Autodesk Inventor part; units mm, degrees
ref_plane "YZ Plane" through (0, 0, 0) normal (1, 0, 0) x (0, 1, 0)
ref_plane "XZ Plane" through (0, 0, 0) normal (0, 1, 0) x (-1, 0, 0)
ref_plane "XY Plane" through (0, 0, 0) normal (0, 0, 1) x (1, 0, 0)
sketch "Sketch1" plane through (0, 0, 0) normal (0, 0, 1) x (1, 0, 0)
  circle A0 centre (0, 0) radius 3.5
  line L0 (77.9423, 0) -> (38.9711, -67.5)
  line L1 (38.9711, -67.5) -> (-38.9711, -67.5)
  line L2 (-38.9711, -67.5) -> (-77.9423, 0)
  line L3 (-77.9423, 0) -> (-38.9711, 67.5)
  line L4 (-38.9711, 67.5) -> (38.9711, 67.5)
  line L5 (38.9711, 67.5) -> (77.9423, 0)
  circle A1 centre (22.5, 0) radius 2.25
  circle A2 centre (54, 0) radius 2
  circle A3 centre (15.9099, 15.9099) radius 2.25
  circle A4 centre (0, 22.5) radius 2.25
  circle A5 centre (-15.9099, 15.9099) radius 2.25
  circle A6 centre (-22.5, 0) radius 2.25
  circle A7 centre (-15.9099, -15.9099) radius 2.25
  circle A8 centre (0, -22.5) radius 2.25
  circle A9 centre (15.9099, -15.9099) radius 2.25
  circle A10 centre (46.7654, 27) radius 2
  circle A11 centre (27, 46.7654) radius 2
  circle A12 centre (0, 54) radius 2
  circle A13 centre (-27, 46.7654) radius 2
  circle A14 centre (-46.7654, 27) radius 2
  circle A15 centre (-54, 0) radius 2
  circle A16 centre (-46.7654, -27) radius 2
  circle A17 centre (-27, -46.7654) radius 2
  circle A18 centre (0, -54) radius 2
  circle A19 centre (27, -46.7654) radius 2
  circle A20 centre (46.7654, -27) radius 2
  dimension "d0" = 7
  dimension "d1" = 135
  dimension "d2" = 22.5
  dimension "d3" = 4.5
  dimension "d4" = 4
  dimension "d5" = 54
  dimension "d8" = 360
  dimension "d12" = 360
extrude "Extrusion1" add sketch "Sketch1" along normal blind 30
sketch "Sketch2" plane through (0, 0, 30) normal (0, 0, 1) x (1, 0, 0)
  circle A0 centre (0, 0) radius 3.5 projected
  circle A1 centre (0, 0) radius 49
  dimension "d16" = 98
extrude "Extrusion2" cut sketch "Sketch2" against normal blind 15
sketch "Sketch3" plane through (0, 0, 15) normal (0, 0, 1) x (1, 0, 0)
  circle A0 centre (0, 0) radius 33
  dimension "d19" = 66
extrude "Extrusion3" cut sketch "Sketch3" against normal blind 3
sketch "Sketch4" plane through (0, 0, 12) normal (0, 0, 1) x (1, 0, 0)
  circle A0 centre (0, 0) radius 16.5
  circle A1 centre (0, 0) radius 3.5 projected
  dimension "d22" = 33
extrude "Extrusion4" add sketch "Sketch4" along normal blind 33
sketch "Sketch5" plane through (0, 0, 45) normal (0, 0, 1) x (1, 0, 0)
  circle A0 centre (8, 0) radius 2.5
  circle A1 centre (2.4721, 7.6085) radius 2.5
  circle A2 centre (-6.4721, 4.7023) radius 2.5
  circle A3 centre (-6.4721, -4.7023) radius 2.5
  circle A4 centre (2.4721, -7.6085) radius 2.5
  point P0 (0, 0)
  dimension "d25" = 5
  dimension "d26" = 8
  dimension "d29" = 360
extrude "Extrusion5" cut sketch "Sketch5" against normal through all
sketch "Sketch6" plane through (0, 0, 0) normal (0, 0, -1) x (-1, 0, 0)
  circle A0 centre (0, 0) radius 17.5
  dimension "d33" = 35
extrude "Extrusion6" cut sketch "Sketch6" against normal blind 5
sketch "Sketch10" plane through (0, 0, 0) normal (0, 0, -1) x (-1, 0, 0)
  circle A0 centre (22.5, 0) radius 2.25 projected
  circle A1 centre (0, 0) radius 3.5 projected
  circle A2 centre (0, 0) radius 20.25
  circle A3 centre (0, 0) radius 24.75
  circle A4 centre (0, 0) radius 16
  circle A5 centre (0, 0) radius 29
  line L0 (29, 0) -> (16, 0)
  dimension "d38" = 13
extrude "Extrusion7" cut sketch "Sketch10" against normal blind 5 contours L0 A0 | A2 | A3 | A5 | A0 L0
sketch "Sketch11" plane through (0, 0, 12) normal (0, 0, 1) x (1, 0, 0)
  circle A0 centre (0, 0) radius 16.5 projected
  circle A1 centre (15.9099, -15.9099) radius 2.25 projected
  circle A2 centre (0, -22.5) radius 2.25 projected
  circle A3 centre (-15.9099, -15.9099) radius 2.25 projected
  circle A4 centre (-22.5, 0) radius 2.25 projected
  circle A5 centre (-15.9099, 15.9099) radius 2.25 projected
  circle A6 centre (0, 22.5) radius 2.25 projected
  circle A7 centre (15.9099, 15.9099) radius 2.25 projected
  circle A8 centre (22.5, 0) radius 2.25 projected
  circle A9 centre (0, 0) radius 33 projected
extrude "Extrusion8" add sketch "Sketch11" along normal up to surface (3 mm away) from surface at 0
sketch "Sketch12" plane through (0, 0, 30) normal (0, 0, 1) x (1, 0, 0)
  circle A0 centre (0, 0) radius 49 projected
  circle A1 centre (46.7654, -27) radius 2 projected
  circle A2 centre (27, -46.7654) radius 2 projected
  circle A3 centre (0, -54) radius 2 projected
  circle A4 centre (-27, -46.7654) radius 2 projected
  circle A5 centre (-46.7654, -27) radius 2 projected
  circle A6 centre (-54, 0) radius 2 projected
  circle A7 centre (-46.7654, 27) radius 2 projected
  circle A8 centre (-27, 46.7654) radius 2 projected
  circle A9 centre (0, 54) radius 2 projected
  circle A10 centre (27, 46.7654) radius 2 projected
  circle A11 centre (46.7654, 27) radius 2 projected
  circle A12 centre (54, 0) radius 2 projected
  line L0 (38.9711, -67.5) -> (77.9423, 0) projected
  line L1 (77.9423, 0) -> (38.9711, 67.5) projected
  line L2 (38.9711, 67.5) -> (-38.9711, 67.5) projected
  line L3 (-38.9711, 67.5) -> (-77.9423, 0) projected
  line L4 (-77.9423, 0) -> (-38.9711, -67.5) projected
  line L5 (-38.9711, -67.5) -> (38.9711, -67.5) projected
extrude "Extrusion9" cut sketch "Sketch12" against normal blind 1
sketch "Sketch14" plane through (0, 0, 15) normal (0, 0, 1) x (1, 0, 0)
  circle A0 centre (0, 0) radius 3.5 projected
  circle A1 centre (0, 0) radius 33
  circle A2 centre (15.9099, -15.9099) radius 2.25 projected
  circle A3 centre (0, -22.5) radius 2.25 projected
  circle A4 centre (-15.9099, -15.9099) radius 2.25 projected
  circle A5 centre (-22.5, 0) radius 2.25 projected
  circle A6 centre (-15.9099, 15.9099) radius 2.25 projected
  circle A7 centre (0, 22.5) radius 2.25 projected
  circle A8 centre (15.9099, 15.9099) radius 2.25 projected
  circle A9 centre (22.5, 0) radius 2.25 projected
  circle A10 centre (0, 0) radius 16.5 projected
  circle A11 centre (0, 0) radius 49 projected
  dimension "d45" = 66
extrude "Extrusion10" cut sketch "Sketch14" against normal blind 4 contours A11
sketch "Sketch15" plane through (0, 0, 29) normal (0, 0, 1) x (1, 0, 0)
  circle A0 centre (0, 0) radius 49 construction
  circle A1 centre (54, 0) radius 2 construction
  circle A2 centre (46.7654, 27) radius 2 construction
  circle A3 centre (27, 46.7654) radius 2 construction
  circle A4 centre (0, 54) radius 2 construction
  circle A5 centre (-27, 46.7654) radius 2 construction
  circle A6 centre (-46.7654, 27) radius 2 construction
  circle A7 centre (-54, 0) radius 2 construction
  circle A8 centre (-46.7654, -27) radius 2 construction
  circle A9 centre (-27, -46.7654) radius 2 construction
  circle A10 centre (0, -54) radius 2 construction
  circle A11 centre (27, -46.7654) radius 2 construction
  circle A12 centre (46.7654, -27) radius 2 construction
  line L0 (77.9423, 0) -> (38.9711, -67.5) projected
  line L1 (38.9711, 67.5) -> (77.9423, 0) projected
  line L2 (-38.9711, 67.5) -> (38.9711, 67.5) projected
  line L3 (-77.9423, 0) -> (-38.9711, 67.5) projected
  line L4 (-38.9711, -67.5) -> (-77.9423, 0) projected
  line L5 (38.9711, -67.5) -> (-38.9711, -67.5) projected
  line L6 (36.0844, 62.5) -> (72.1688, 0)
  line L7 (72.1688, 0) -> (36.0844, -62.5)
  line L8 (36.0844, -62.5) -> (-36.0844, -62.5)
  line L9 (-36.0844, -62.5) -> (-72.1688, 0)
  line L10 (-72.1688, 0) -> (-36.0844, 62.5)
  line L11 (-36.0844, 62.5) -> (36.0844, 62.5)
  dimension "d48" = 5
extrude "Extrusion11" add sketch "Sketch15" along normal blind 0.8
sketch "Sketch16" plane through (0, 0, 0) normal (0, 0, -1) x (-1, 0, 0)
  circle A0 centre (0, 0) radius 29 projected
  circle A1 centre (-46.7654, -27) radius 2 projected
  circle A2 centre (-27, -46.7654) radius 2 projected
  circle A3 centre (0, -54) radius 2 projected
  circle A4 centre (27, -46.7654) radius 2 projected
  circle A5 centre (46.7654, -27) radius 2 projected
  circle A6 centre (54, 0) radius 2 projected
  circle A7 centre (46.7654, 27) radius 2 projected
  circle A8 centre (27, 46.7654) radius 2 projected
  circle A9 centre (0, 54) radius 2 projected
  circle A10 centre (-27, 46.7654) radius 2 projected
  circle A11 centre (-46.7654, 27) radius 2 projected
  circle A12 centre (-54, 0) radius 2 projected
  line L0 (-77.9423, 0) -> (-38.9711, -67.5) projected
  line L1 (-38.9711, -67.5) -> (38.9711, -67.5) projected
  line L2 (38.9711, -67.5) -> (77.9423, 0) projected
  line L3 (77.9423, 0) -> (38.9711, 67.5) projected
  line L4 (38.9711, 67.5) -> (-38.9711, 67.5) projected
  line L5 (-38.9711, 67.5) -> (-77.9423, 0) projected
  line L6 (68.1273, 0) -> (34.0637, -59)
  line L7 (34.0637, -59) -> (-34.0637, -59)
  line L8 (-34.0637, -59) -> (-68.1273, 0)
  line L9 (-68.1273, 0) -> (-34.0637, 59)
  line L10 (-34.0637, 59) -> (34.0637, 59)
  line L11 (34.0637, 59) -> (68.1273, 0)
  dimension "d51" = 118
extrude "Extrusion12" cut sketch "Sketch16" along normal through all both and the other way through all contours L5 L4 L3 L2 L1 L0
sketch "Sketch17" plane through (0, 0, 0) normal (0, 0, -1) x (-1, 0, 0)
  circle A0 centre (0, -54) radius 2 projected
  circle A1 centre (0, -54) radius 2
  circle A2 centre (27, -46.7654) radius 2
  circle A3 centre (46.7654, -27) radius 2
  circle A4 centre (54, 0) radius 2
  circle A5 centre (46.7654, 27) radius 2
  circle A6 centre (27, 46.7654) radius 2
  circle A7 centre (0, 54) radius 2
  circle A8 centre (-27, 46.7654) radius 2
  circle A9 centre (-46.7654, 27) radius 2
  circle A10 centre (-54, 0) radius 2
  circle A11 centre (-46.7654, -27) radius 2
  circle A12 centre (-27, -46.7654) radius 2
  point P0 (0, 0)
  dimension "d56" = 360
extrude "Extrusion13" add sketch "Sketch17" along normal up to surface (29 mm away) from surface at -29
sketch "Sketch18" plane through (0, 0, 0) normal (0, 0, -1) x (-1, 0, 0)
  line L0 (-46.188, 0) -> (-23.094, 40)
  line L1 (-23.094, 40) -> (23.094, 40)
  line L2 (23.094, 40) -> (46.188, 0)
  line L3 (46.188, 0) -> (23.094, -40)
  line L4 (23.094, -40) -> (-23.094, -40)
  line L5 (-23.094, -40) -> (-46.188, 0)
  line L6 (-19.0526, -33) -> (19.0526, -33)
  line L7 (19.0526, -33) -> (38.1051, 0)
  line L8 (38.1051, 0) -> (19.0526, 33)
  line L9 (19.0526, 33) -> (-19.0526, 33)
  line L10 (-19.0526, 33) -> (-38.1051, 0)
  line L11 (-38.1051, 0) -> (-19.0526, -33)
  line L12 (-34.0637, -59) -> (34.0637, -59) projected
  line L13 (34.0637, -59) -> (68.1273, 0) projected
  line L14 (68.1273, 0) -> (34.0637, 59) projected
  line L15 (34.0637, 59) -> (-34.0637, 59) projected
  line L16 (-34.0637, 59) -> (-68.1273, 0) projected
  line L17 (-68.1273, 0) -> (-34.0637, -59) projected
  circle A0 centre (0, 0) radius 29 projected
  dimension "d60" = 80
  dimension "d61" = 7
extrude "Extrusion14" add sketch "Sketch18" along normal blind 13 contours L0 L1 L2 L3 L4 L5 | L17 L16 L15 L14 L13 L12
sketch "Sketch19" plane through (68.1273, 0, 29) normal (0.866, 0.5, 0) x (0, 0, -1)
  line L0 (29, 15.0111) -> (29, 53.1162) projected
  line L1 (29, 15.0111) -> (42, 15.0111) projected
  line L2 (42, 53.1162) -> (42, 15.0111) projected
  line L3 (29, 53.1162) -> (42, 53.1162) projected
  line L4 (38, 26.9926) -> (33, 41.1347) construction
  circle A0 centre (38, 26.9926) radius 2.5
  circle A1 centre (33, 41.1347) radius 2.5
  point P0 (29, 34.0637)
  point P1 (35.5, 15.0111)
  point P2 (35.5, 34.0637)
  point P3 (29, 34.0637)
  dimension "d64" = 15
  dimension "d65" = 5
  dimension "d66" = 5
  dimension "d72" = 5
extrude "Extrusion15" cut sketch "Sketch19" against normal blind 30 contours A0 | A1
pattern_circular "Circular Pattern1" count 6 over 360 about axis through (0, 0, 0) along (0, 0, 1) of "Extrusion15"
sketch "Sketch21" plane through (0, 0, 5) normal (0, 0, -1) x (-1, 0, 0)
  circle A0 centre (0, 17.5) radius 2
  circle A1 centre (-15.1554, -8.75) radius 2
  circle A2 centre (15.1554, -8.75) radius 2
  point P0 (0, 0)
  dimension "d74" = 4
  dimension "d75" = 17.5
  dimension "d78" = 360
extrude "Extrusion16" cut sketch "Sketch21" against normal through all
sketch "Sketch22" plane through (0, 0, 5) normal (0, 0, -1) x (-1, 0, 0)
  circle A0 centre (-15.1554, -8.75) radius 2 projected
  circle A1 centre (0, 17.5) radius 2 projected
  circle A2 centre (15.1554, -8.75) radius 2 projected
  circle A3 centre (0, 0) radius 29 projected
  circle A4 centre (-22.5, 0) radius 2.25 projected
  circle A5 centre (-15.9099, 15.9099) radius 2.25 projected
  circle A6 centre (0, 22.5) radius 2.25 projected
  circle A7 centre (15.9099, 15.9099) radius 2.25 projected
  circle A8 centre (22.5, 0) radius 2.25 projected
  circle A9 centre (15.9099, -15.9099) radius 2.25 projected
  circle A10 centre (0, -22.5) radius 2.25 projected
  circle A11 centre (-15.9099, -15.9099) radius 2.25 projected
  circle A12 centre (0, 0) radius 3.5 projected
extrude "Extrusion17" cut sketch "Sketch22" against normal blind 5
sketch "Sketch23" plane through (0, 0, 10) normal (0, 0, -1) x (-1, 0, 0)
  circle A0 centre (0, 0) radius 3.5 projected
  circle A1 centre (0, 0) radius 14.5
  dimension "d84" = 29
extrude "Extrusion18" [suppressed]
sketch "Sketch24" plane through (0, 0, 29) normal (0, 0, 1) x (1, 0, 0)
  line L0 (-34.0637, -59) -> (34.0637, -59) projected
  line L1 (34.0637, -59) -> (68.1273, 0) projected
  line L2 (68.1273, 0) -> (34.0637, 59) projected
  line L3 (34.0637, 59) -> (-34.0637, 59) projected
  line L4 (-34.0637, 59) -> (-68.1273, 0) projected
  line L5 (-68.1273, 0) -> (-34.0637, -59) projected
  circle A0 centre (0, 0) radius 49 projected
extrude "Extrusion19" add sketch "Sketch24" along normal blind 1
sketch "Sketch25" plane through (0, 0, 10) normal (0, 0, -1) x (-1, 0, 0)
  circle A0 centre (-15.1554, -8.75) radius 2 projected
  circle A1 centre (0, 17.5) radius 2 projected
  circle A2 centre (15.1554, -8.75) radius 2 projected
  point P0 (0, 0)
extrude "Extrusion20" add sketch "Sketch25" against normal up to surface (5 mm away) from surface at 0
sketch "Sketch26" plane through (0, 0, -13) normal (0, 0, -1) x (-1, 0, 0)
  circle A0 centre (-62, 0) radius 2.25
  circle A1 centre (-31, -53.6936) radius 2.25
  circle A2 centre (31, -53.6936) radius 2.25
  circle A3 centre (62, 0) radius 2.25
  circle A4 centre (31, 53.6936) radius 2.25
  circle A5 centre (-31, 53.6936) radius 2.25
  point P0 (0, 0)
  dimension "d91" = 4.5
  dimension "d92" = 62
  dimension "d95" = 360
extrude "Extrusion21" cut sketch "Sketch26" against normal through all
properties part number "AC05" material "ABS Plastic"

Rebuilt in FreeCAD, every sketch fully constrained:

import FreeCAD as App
import Part
import Sketcher

V = App.Vector
Q = App.Units.Quantity

doc = App.newDocument("Part")
body = doc.addObject("PartDesign::Body", "Body")

# Sketch on XY plane
sketch1 = body.newObject("Sketcher::SketchObject", "Sketch")
sketch1.AttachmentSupport = (doc.getObject("XY_Plane"), [""])
sketch1.MapMode = "FlatFace"
sketch1.addGeometry([
    Part.LineSegment(V(39, -67.5, 0), V(77.9, 0, 0)),  # 0
    Part.LineSegment(V(77.9, 0, 0), V(39, 67.5, 0)),  # 1
    Part.LineSegment(V(39, 67.5, 0), V(-39, 67.5, 0)),  # 2
    Part.LineSegment(V(-39, 67.5, 0), V(-77.9, 0, 0)),  # 3
    Part.LineSegment(V(-77.9, 0, 0), V(-39, -67.5, 0)),  # 4
    Part.LineSegment(V(-39, -67.5, 0), V(39, -67.5, 0)),  # 5
    Part.Circle(V(-27, -46.8, 0), V(0, 0, 1), 2),  # 6
    Part.Circle(V(-46.8, -27, 0), V(0, 0, 1), 2),  # 7
    Part.Circle(V(-15.9, -15.9, 0), V(0, 0, 1), 2.2),  # 8
    Part.Circle(V(0, -54, 0), V(0, 0, 1), 2),  # 9
    Part.Circle(V(27, -46.8, 0), V(0, 0, 1), 2),  # 10
    Part.Circle(V(0, -22.5, 0), V(0, 0, 1), 2.2),  # 11
    Part.Circle(V(15.9, -15.9, 0), V(0, 0, 1), 2.2),  # 12
    Part.Circle(V(46.8, -27, 0), V(0, 0, 1), 2),  # 13
    Part.Circle(V(-54, 0, 0), V(0, 0, 1), 2),  # 14
    Part.Circle(V(-46.8, 27, 0), V(0, 0, 1), 2),  # 15
    Part.Circle(V(-22.5, 0, 0), V(0, 0, 1), 2.2),  # 16
    Part.Circle(V(-15.9, 15.9, 0), V(0, 0, 1), 2.2),  # 17
    Part.Circle(V(-27, 46.8, 0), V(0, 0, 1), 2),  # 18
    Part.Circle(V(0, 0, 0), V(0, 0, 1), 3.5),  # 19
    Part.Circle(V(15.9, 15.9, 0), V(0, 0, 1), 2.2),  # 20
    Part.Circle(V(22.5, 0, 0), V(0, 0, 1), 2.2),  # 21
    Part.Circle(V(0, 22.5, 0), V(0, 0, 1), 2.2),  # 22
    Part.Circle(V(54, 0, 0), V(0, 0, 1), 2),  # 23
    Part.Circle(V(46.8, 27, 0), V(0, 0, 1), 2),  # 24
    Part.Circle(V(27, 46.8, 0), V(0, 0, 1), 2),  # 25
    Part.Circle(V(0, 54, 0), V(0, 0, 1), 2),  # 26
], False)
sketch1.addConstraint([
    Sketcher.Constraint("Coincident", 0, 2, 1, 1),
    Sketcher.Constraint("Coincident", 1, 2, 2, 1),
    Sketcher.Constraint("Coincident", 2, 2, 3, 1),
    Sketcher.Constraint("Coincident", 3, 2, 4, 1),
    Sketcher.Constraint("Coincident", 4, 2, 5, 1),
    Sketcher.Constraint("Coincident", 5, 2, 0, 1),
    Sketcher.Constraint("Horizontal", 2),
    Sketcher.Constraint("Horizontal", 5),
    Sketcher.Constraint("Coincident", 19, 3, -1, 1),
    Sketcher.Constraint("Equal", 6, 7),
    Sketcher.Constraint("Equal", 7, 9),
    Sketcher.Constraint("Equal", 9, 10),
    Sketcher.Constraint("Equal", 8, 11),
    Sketcher.Constraint("Equal", 11, 12),
    Sketcher.Constraint("Equal", 10, 13),
    Sketcher.Constraint("Equal", 13, 14),
    Sketcher.Constraint("Equal", 14, 15),
    Sketcher.Constraint("Equal", 12, 16),
    Sketcher.Constraint("Equal", 16, 17),
    Sketcher.Constraint("Equal", 15, 18),
    Sketcher.Constraint("Equal", 17, 20),
    Sketcher.Constraint("Equal", 20, 21),
    Sketcher.Constraint("Equal", 21, 22),
    Sketcher.Constraint("Equal", 18, 23),
    Sketcher.Constraint("Equal", 23, 24),
    Sketcher.Constraint("Equal", 24, 25),
    Sketcher.Constraint("Equal", 25, 26),
    Sketcher.Constraint("Symmetric", 13, 3, 15, 3, -1, 1),
    Sketcher.Constraint("Symmetric", 12, 3, 17, 3, -1, 1),
    Sketcher.Constraint("Symmetric", 10, 3, 18, 3, -1, 1),
    Sketcher.Constraint("Symmetric", 8, 3, 20, 3, -1, 1),
    Sketcher.Constraint("Symmetric", 16, 3, 21, 3, -1, 1),
    Sketcher.Constraint("Symmetric", 11, 3, 22, 3, -1, 1),
    Sketcher.Constraint("Symmetric", 14, 3, 23, 3, -1, 1),
    Sketcher.Constraint("Symmetric", 7, 3, 24, 3, -1, 1),
    Sketcher.Constraint("Symmetric", 6, 3, 25, 3, -1, 1),
    Sketcher.Constraint("Symmetric", 9, 3, 26, 3, -1, 1),
    Sketcher.Constraint("Symmetric", 0, 2, 3, 2, -1, 1),
    Sketcher.Constraint("Symmetric", 1, 2, 4, 2, -1, 1),
    Sketcher.Constraint("Symmetric", 6, 3, 10, 3, -2),
    Sketcher.Constraint("Symmetric", 8, 3, 12, 3, -2),
    Sketcher.Constraint("Symmetric", 7, 3, 13, 3, -2),
    Sketcher.Constraint("PointOnObject", 9, 3, -2),
    Sketcher.Constraint("PointOnObject", 11, 3, -2),
    Sketcher.Constraint("PointOnObject", 14, 3, -1),
    Sketcher.Constraint("PointOnObject", 16, 3, -1),
    Sketcher.Constraint("PointOnObject", 0, 2, -1),
    Sketcher.Constraint("Parallel", 0, 3),
    Sketcher.Constraint("Vertical", 2, 2, 4, 2),
    Sketcher.Constraint("Diameter", 6, 4.0),
    Sketcher.Constraint("Diameter", 19, 7.0),
    Sketcher.Constraint("Diameter", 8, 4.5),
    Sketcher.Constraint("DistanceY", 9, 3, -1, 1, 54.0),
    Sketcher.Constraint("DistanceX", 14, 3, -1, 1, 54.0),
    Sketcher.Constraint("DistanceX", 6, 3, 10, 3, 54.0),
    Sketcher.Constraint("DistanceY", 7, 3, 15, 3, 54.0),
    Sketcher.Constraint("DistanceY", 11, 3, -1, 1, 22.5),
    Sketcher.Constraint("DistanceX", 16, 3, -1, 1, 22.5),
    Sketcher.Constraint("Angle", 0, Q("60 deg")),
    Sketcher.Constraint("DistanceY", 22, 3, 1, 2, 45.0),
    Sketcher.Constraint("DistanceX", 8, 3, -1, 1, 15.91),
    Sketcher.Constraint("DistanceY", 8, 3, -1, 1, 15.91),
    Sketcher.Constraint("DistanceX", 2, 2, 2, 1, 77.9422),
    Sketcher.Constraint("DistanceX", 13, 3, 0, 2, 31.177),
    Sketcher.Constraint("DistanceY", 6, 3, -1, 1, 46.7654),
])
pad1 = body.newObject("PartDesign::Pad", "Pad")
pad1.Profile = sketch1
pad1.Length = 30

# Sketch on XY plane
sketch2 = body.newObject("Sketcher::SketchObject", "Sketch001")
sketch2.AttachmentSupport = (doc.getObject("XY_Plane"), [""])
sketch2.MapMode = "FlatFace"
sketch2.AttachmentOffset = App.Placement(V(0, 0, 30), App.Rotation())
sketch2.addGeometry([
    Part.Circle(V(0, 0, 0), V(0, 0, 1), 49),
    Part.Circle(V(0, 0, 0), V(0, 0, 1), 3.5),
], False)
sketch2.addConstraint([
    Sketcher.Constraint("Coincident", 0, 3, -1, 1),
    Sketcher.Constraint("Coincident", 1, 3, -1, 1),
    Sketcher.Constraint("Diameter", 0, 98.0),
    Sketcher.Constraint("Diameter", 1, 7.0),
])
pocket1 = body.newObject("PartDesign::Pocket", "Pocket")
pocket1.Profile = sketch2
pocket1.Length = 15

# Sketch on XY plane
sketch3 = body.newObject("Sketcher::SketchObject", "Sketch002")
sketch3.AttachmentSupport = (doc.getObject("XY_Plane"), [""])
sketch3.MapMode = "FlatFace"
sketch3.AttachmentOffset = App.Placement(V(0, 0, 15), App.Rotation())
sketch3.addGeometry(Part.Circle(V(0, 0, 0), V(0, 0, 1), 33), False)
sketch3.addConstraint([
    Sketcher.Constraint("Coincident", 0, 3, -1, 1),
    Sketcher.Constraint("Diameter", 0, 66.0),
])
pocket2 = body.newObject("PartDesign::Pocket", "Pocket001")
pocket2.Profile = sketch3
pocket2.Length = 3

# Sketch on XY plane
sketch4 = body.newObject("Sketcher::SketchObject", "Sketch003")
sketch4.AttachmentSupport = (doc.getObject("XY_Plane"), [""])
sketch4.MapMode = "FlatFace"
sketch4.AttachmentOffset = App.Placement(V(0, 0, 12), App.Rotation())
sketch4.addGeometry([
    Part.Circle(V(0, 0, 0), V(0, 0, 1), 16.5),
    Part.Circle(V(0, 0, 0), V(0, 0, 1), 3.5),
], False)
sketch4.addConstraint([
    Sketcher.Constraint("Coincident", 0, 3, -1, 1),
    Sketcher.Constraint("Coincident", 1, 3, -1, 1),
    Sketcher.Constraint("Diameter", 0, 33.0),
    Sketcher.Constraint("Diameter", 1, 7.0),
])
pad2 = body.newObject("PartDesign::Pad", "Pad001")
pad2.Profile = sketch4
pad2.Length = 33

# Sketch on XY plane
sketch5 = body.newObject("Sketcher::SketchObject", "Sketch004")
sketch5.AttachmentSupport = (doc.getObject("XY_Plane"), [""])
sketch5.MapMode = "FlatFace"
sketch5.AttachmentOffset = App.Placement(V(0, 0, 45), App.Rotation())
sketch5.addGeometry([
    Part.Circle(V(8, 0, 0), V(0, 0, 1), 2.5),  # 0
    Part.Circle(V(2.5, 7.6, 0), V(0, 0, 1), 2.5),  # 1
    Part.Circle(V(-6.5, 4.7, 0), V(0, 0, 1), 2.5),  # 2
    Part.Circle(V(-6.5, -4.7, 0), V(0, 0, 1), 2.5),  # 3
    Part.Circle(V(2.5, -7.6, 0), V(0, 0, 1), 2.5),  # 4
], False)
sketch5.addConstraint([
    Sketcher.Constraint("Equal", 0, 1),
    Sketcher.Constraint("Equal", 1, 2),
    Sketcher.Constraint("Equal", 2, 3),
    Sketcher.Constraint("Equal", 3, 4),
    Sketcher.Constraint("Symmetric", 2, 3, 3, 3, -1),
    Sketcher.Constraint("Symmetric", 1, 3, 4, 3, -1),
    Sketcher.Constraint("PointOnObject", 0, 3, -1),
    Sketcher.Constraint("Diameter", 0, 5.0),
    Sketcher.Constraint("DistanceX", -1, 1, 0, 3, 8.0),
    Sketcher.Constraint("DistanceX", -1, 1, 1, 3, 2.472),
    Sketcher.Constraint("DistanceX", 2, 3, -1, 1, 6.472),
    Sketcher.Constraint("DistanceY", 4, 3, 1, 3, 15.217),
    Sketcher.Constraint("DistanceY", -1, 1, 2, 3, 4.7023),
])
pocket3 = body.newObject("PartDesign::Pocket", "Pocket002")
pocket3.Profile = sketch5
pocket3.Type = "ThroughAll"

# Sketch on XY plane
sketch6 = body.newObject("Sketcher::SketchObject", "Sketch005")
sketch6.AttachmentSupport = (doc.getObject("XY_Plane"), [""])
sketch6.MapMode = "FlatFace"
sketch6.addGeometry(Part.Circle(V(0, 0, 0), V(0, 0, 1), 18), False)
sketch6.addConstraint([
    Sketcher.Constraint("Coincident", 0, 3, -1, 1),
    Sketcher.Constraint("Diameter", 0, 35.0),
])
pocket4 = body.newObject("PartDesign::Pocket", "Pocket003")
pocket4.Profile = sketch6
pocket4.Length = 5
pocket4.Reversed = True

# Sketch on XY plane
sketch7 = body.newObject("Sketcher::SketchObject", "Sketch006")
sketch7.AttachmentSupport = (doc.getObject("XY_Plane"), [""])
sketch7.MapMode = "FlatFace"
sketch7.addGeometry([
    Part.Circle(V(0, 0, 0), V(0, 0, 1), 29),
    Part.Circle(V(0, 0, 0), V(0, 0, 1), 16),
], False)
sketch7.addConstraint([
    Sketcher.Constraint("Coincident", 0, 3, -1, 1),
    Sketcher.Constraint("Coincident", 1, 3, -1, 1),
    Sketcher.Constraint("Diameter", 0, 58.0),
    Sketcher.Constraint("Diameter", 1, 32.0),
])
pocket5 = body.newObject("PartDesign::Pocket", "Pocket004")
pocket5.Profile = sketch7
pocket5.Length = 5
pocket5.Reversed = True

# Sketch on XY plane
sketch8 = body.newObject("Sketcher::SketchObject", "Sketch007")
sketch8.AttachmentSupport = (doc.getObject("XY_Plane"), [""])
sketch8.MapMode = "FlatFace"
sketch8.AttachmentOffset = App.Placement(V(0, 0, 12), App.Rotation())
sketch8.addGeometry([
    Part.Circle(V(0, 0, 0), V(0, 0, 1), 33),  # 0
    Part.Circle(V(-15.9, -15.9, 0), V(0, 0, 1), 2.2),  # 1
    Part.Circle(V(0, -22.5, 0), V(0, 0, 1), 2.2),  # 2
    Part.Circle(V(15.9, -15.9, 0), V(0, 0, 1), 2.2),  # 3
    Part.Circle(V(-22.5, 0, 0), V(0, 0, 1), 2.2),  # 4
    Part.Circle(V(-15.9, 15.9, 0), V(0, 0, 1), 2.2),  # 5
    Part.Circle(V(0, 0, 0), V(0, 0, 1), 16.5),  # 6
    Part.Circle(V(15.9, 15.9, 0), V(0, 0, 1), 2.2),  # 7
    Part.Circle(V(22.5, 0, 0), V(0, 0, 1), 2.2),  # 8
    Part.Circle(V(0, 22.5, 0), V(0, 0, 1), 2.2),  # 9
], False)
sketch8.addConstraint([
    Sketcher.Constraint("Coincident", 0, 3, -1, 1),
    Sketcher.Constraint("Coincident", 6, 3, -1, 1),
    Sketcher.Constraint("Equal", 1, 2),
    Sketcher.Constraint("Equal", 2, 3),
    Sketcher.Constraint("Equal", 3, 4),
    Sketcher.Constraint("Equal", 4, 5),
    Sketcher.Constraint("Equal", 5, 7),
    Sketcher.Constraint("Equal", 7, 8),
    Sketcher.Constraint("Equal", 8, 9),
    Sketcher.Constraint("Symmetric", 3, 3, 5, 3, -1, 1),
    Sketcher.Constraint("Symmetric", 1, 3, 7, 3, -1, 1),
    Sketcher.Constraint("Symmetric", 4, 3, 8, 3, -1, 1),
    Sketcher.Constraint("Symmetric", 2, 3, 9, 3, -1, 1),
    Sketcher.Constraint("Symmetric", 1, 3, 3, 3, -2),
    Sketcher.Constraint("PointOnObject", 2, 3, -2),
    Sketcher.Constraint("PointOnObject", 4, 3, -1),
    Sketcher.Constraint("Diameter", 0, 66.0),
    Sketcher.Constraint("Diameter", 6, 33.0),
    Sketcher.Constraint("Diameter", 1, 4.5),
    Sketcher.Constraint("DistanceY", 2, 3, -1, 1, 22.5),
    Sketcher.Constraint("DistanceX", 4, 3, -1, 1, 22.5),
    Sketcher.Constraint("DistanceX", 1, 3, -1, 1, 15.91),
    Sketcher.Constraint("DistanceY", 1, 3, -1, 1, 15.91),
])
pad3 = body.newObject("PartDesign::Pad", "Pad002")
pad3.Profile = sketch8
pad3.Length = 3

# Sketch on XY plane
sketch9 = body.newObject("Sketcher::SketchObject", "Sketch008")
sketch9.AttachmentSupport = (doc.getObject("XY_Plane"), [""])
sketch9.MapMode = "FlatFace"
sketch9.AttachmentOffset = App.Placement(V(0, 0, 30), App.Rotation())
sketch9.addGeometry([
    Part.LineSegment(V(-39, -67.5, 0), V(39, -67.5, 0)),  # 0
    Part.LineSegment(V(39, -67.5, 0), V(77.9, 0, 0)),  # 1
    Part.LineSegment(V(77.9, 0, 0), V(39, 67.5, 0)),  # 2
    Part.LineSegment(V(39, 67.5, 0), V(-39, 67.5, 0)),  # 3
    Part.LineSegment(V(-39, 67.5, 0), V(-77.9, 0, 0)),  # 4
    Part.LineSegment(V(-77.9, 0, 0), V(-39, -67.5, 0)),  # 5
    Part.Circle(V(-27, -46.8, 0), V(0, 0, 1), 2),  # 6
    Part.Circle(V(-46.8, -27, 0), V(0, 0, 1), 2),  # 7
    Part.Circle(V(0, -54, 0), V(0, 0, 1), 2),  # 8
    Part.Circle(V(27, -46.8, 0), V(0, 0, 1), 2),  # 9
    Part.Circle(V(46.8, -27, 0), V(0, 0, 1), 2),  # 10
    Part.Circle(V(-54, 0, 0), V(0, 0, 1), 2),  # 11
    Part.Circle(V(-46.8, 27, 0), V(0, 0, 1), 2),  # 12
    Part.Circle(V(-27, 46.8, 0), V(0, 0, 1), 2),  # 13
    Part.Circle(V(0, 0, 0), V(0, 0, 1), 49),  # 14
    Part.Circle(V(54, 0, 0), V(0, 0, 1), 2),  # 15
    Part.Circle(V(46.8, 27, 0), V(0, 0, 1), 2),  # 16
    Part.Circle(V(27, 46.8, 0), V(0, 0, 1), 2),  # 17
    Part.Circle(V(0, 54, 0), V(0, 0, 1), 2),  # 18
], False)
sketch9.addConstraint([
    Sketcher.Constraint("Coincident", 0, 2, 1, 1),
    Sketcher.Constraint("Coincident", 1, 2, 2, 1),
    Sketcher.Constraint("Coincident", 2, 2, 3, 1),
    Sketcher.Constraint("Coincident", 3, 2, 4, 1),
    Sketcher.Constraint("Coincident", 4, 2, 5, 1),
    Sketcher.Constraint("Coincident", 5, 2, 0, 1),
    Sketcher.Constraint("Horizontal", 0),
    Sketcher.Constraint("Horizontal", 3),
    Sketcher.Constraint("Coincident", 14, 3, -1, 1),
    Sketcher.Constraint("Equal", 6, 7),
    Sketcher.Constraint("Equal", 7, 8),
    Sketcher.Constraint("Equal", 8, 9),
    Sketcher.Constraint("Equal", 9, 10),
    Sketcher.Constraint("Equal", 10, 11),
    Sketcher.Constraint("Equal", 11, 12),
    Sketcher.Constraint("Equal", 12, 13),
    Sketcher.Constraint("Equal", 13, 15),
    Sketcher.Constraint("Equal", 15, 16),
    Sketcher.Constraint("Equal", 16, 17),
    Sketcher.Constraint("Equal", 17, 18),
    Sketcher.Constraint("Symmetric", 10, 3, 12, 3, -1, 1),
    Sketcher.Constraint("Symmetric", 9, 3, 13, 3, -1, 1),
    Sketcher.Constraint("Symmetric", 11, 3, 15, 3, -1, 1),
    Sketcher.Constraint("Symmetric", 7, 3, 16, 3, -1, 1),
    Sketcher.Constraint("Symmetric", 6, 3, 17, 3, -1, 1),
    Sketcher.Constraint("Symmetric", 8, 3, 18, 3, -1, 1),
    Sketcher.Constraint("Symmetric", 0, 2, 3, 2, -1, 1),
    Sketcher.Constraint("Symmetric", 1, 2, 4, 2, -1, 1),
    Sketcher.Constraint("Symmetric", 6, 3, 9, 3, -2),
    Sketcher.Constraint("Symmetric", 7, 3, 10, 3, -2),
    Sketcher.Constraint("PointOnObject", 8, 3, -2),
    Sketcher.Constraint("PointOnObject", 11, 3, -1),
    Sketcher.Constraint("PointOnObject", 1, 2, -1),
    Sketcher.Constraint("Parallel", 2, 5),
    Sketcher.Constraint("Vertical", 0, 2, 2, 2),
    Sketcher.Constraint("Diameter", 6, 4.0),
    Sketcher.Constraint("Diameter", 14, 98.0),
    Sketcher.Constraint("Angle", 1, Q("60 deg")),
    Sketcher.Constraint("DistanceX", 6, 3, -1, 1, 27.0),
    Sketcher.Constraint("DistanceY", 7, 3, -1, 1, 27.0),
    Sketcher.Constraint("DistanceY", 8, 3, -1, 1, 54.0),
    Sketcher.Constraint("DistanceX", 11, 3, -1, 1, 54.0),
    Sketcher.Constraint("DistanceY", 0, 2, -1, 1, 67.5),
    Sketcher.Constraint("DistanceX", 0, 1, 0, 2, 77.9422),
    Sketcher.Constraint("DistanceX", 10, 3, 1, 2, 31.177),
    Sketcher.Constraint("DistanceY", 6, 3, -1, 1, 46.7654),
])
pocket6 = body.newObject("PartDesign::Pocket", "Pocket005")
pocket6.Profile = sketch9
pocket6.Length = 1

# Sketch on XY plane
sketch10 = body.newObject("Sketcher::SketchObject", "Sketch009")
sketch10.AttachmentSupport = (doc.getObject("XY_Plane"), [""])
sketch10.MapMode = "FlatFace"
sketch10.AttachmentOffset = App.Placement(V(0, 0, 15), App.Rotation())
sketch10.addGeometry([
    Part.Circle(V(0, 0, 0), V(0, 0, 1), 49),
    Part.Circle(V(0, 0, 0), V(0, 0, 1), 33),
], False)
sketch10.addConstraint([
    Sketcher.Constraint("Coincident", 0, 3, -1, 1),
    Sketcher.Constraint("Coincident", 1, 3, -1, 1),
    Sketcher.Constraint("Diameter", 1, 66.0),
    Sketcher.Constraint("Diameter", 0, 98.0),
])
pocket7 = body.newObject("PartDesign::Pocket", "Pocket006")
pocket7.Profile = sketch10
pocket7.Length = 4

# Sketch on XY plane
sketch11 = body.newObject("Sketcher::SketchObject", "Sketch010")
sketch11.AttachmentSupport = (doc.getObject("XY_Plane"), [""])
sketch11.MapMode = "FlatFace"
sketch11.AttachmentOffset = App.Placement(V(0, 0, 29), App.Rotation())
sketch11.addGeometry([
    Part.LineSegment(V(39, -68, 0), V(78, 0, 0)),  # 0
    Part.LineSegment(V(78, 0, 0), V(39, 68, 0)),  # 1
    Part.LineSegment(V(39, 68, 0), V(-39, 68, 0)),  # 2
    Part.LineSegment(V(-39, 68, 0), V(-78, 0, 0)),  # 3
    Part.LineSegment(V(-78, 0, 0), V(-39, -68, 0)),  # 4
    Part.LineSegment(V(-39, -68, 0), V(39, -68, 0)),  # 5
    Part.LineSegment(V(-36, 62, 0), V(36, 62, 0)),  # 6
    Part.LineSegment(V(36, 62, 0), V(72, 0, 0)),  # 7
    Part.LineSegment(V(72, 0, 0), V(36, -62, 0)),  # 8
    Part.LineSegment(V(36, -62, 0), V(-36, -62, 0)),  # 9
    Part.LineSegment(V(-36, -62, 0), V(-72, 0, 0)),  # 10
    Part.LineSegment(V(-72, 0, 0), V(-36, 62, 0)),  # 11
], False)
sketch11.addConstraint([
    Sketcher.Constraint("Coincident", 0, 2, 1, 1),
    Sketcher.Constraint("Coincident", 1, 2, 2, 1),
    Sketcher.Constraint("Coincident", 2, 2, 3, 1),
    Sketcher.Constraint("Coincident", 3, 2, 4, 1),
    Sketcher.Constraint("Coincident", 4, 2, 5, 1),
    Sketcher.Constraint("Coincident", 5, 2, 0, 1),
    Sketcher.Constraint("Coincident", 6, 2, 7, 1),
    Sketcher.Constraint("Coincident", 7, 2, 8, 1),
    Sketcher.Constraint("Coincident", 8, 2, 9, 1),
    Sketcher.Constraint("Coincident", 9, 2, 10, 1),
    Sketcher.Constraint("Coincident", 10, 2, 11, 1),
    Sketcher.Constraint("Coincident", 11, 2, 6, 1),
    Sketcher.Constraint("Horizontal", 2),
    Sketcher.Constraint("Horizontal", 5),
    Sketcher.Constraint("Horizontal", 6),
    Sketcher.Constraint("Horizontal", 9),
    Sketcher.Constraint("Symmetric", 0, 2, 3, 2, -1, 1),
    Sketcher.Constraint("Symmetric", 1, 2, 4, 2, -1, 1),
    Sketcher.Constraint("Symmetric", 6, 2, 9, 2, -1, 1),
    Sketcher.Constraint("Symmetric", 7, 2, 10, 2, -1, 1),
    Sketcher.Constraint("PointOnObject", 0, 2, -1),
    Sketcher.Constraint("PointOnObject", 7, 2, -1),
    Sketcher.Constraint("Parallel", 0, 3),
    Sketcher.Constraint("Parallel", 4, 7),
    Sketcher.Constraint("Parallel", 3, 8),
    Sketcher.Constraint("Parallel", 8, 11),
    Sketcher.Constraint("Vertical", 2, 2, 4, 2),
    Sketcher.Constraint("DistanceY", 6, 2, 1, 2, 5.0),
    Sketcher.Constraint("Angle", 0, Q("60 deg")),
    Sketcher.Constraint("DistanceY", 4, 2, 2, 2, 135.0),
    Sketcher.Constraint("DistanceX", 2, 2, 7, 2, 111.14),
    Sketcher.Constraint("DistanceX", 2, 2, 2, 1, 77.9422),
])
pad4 = body.newObject("PartDesign::Pad", "Pad003")
pad4.Profile = sketch11
pad4.Length = 0.8

# Sketch on XY plane
sketch12 = body.newObject("Sketcher::SketchObject", "Sketch011")
sketch12.AttachmentSupport = (doc.getObject("XY_Plane"), [""])
sketch12.MapMode = "FlatFace"
sketch12.addGeometry([
    Part.LineSegment(V(39, 68, 0), V(78, 0, 0)),  # 0
    Part.LineSegment(V(78, 0, 0), V(39, -68, 0)),  # 1
    Part.LineSegment(V(39, -68, 0), V(-39, -68, 0)),  # 2
    Part.LineSegment(V(-39, -68, 0), V(-78, 0, 0)),  # 3
    Part.LineSegment(V(-78, 0, 0), V(-39, 68, 0)),  # 4
    Part.LineSegment(V(-39, 68, 0), V(39, 68, 0)),  # 5
    Part.LineSegment(V(-34, 59, 0), V(-68, 0, 0)),  # 6
    Part.LineSegment(V(-68, 0, 0), V(-34, -59, 0)),  # 7
    Part.LineSegment(V(-34, -59, 0), V(34, -59, 0)),  # 8
    Part.LineSegment(V(34, -59, 0), V(68, 0, 0)),  # 9
    Part.LineSegment(V(68, 0, 0), V(34, 59, 0)),  # 10
    Part.LineSegment(V(34, 59, 0), V(-34, 59, 0)),  # 11
], False)
sketch12.addConstraint([
    Sketcher.Constraint("Coincident", 0, 2, 1, 1),
    Sketcher.Constraint("Coincident", 1, 2, 2, 1),
    Sketcher.Constraint("Coincident", 2, 2, 3, 1),
    Sketcher.Constraint("Coincident", 3, 2, 4, 1),
    Sketcher.Constraint("Coincident", 4, 2, 5, 1),
    Sketcher.Constraint("Coincident", 5, 2, 0, 1),
    Sketcher.Constraint("Coincident", 6, 2, 7, 1),
    Sketcher.Constraint("Coincident", 7, 2, 8, 1),
    Sketcher.Constraint("Coincident", 8, 2, 9, 1),
    Sketcher.Constraint("Coincident", 9, 2, 10, 1),
    Sketcher.Constraint("Coincident", 10, 2, 11, 1),
    Sketcher.Constraint("Coincident", 11, 2, 6, 1),
    Sketcher.Constraint("Horizontal", 2),
    Sketcher.Constraint("Horizontal", 5),
    Sketcher.Constraint("Horizontal", 8),
    Sketcher.Constraint("Horizontal", 11),
    Sketcher.Constraint("Symmetric", 0, 2, 3, 2, -1, 1),
    Sketcher.Constraint("Symmetric", 1, 2, 4, 2, -1, 1),
    Sketcher.Constraint("Symmetric", 6, 2, 9, 2, -1, 1),
    Sketcher.Constraint("Symmetric", 7, 2, 10, 2, -1, 1),
    Sketcher.Constraint("PointOnObject", 0, 2, -1),
    Sketcher.Constraint("PointOnObject", 6, 2, -1),
    Sketcher.Constraint("Parallel", 0, 3),
    Sketcher.Constraint("Parallel", 4, 6),
    Sketcher.Constraint("Parallel", 3, 7),
    Sketcher.Constraint("Parallel", 6, 9),
    Sketcher.Constraint("Vertical", 2, 2, 4, 2),
    Sketcher.Constraint("DistanceY", 8, 2, 10, 2, 118.0),
    Sketcher.Constraint("Angle", 0, Q("-60 deg")),
    Sketcher.Constraint("DistanceY", 2, 2, 4, 2, 135.0),
    Sketcher.Constraint("DistanceX", 2, 2, 2, 1, 77.9422),
    Sketcher.Constraint("DistanceX", 8, 1, 8, 2, 68.1274),
])
pocket8 = body.newObject("PartDesign::Pocket", "Pocket007")
pocket8.Profile = sketch12
pocket8.Type = "ThroughAll"
pocket8.Midplane = True

# Sketch on XY plane
sketch13 = body.newObject("Sketcher::SketchObject", "Sketch012")
sketch13.AttachmentSupport = (doc.getObject("XY_Plane"), [""])
sketch13.MapMode = "FlatFace"
sketch13.AttachmentOffset = App.Placement(V(0, 0, 29), App.Rotation())
sketch13.addGeometry([
    Part.Circle(V(0, -54, 0), V(0, 0, 1), 2),  # 0
    Part.Circle(V(-27, -46.8, 0), V(0, 0, 1), 2),  # 1
    Part.Circle(V(-46.8, -27, 0), V(0, 0, 1), 2),  # 2
    Part.Circle(V(-54, 0, 0), V(0, 0, 1), 2),  # 3
    Part.Circle(V(-46.8, 27, 0), V(0, 0, 1), 2),  # 4
    Part.Circle(V(-27, 46.8, 0), V(0, 0, 1), 2),  # 5
    Part.Circle(V(0, 54, 0), V(0, 0, 1), 2),  # 6
    Part.Circle(V(27, 46.8, 0), V(0, 0, 1), 2),  # 7
    Part.Circle(V(46.8, 27, 0), V(0, 0, 1), 2),  # 8
    Part.Circle(V(54, 0, 0), V(0, 0, 1), 2),  # 9
    Part.Circle(V(46.8, -27, 0), V(0, 0, 1), 2),  # 10
    Part.Circle(V(27, -46.8, 0), V(0, 0, 1), 2),  # 11
], False)
sketch13.addConstraint([
    Sketcher.Constraint("Equal", 0, 1),
    Sketcher.Constraint("Equal", 1, 2),
    Sketcher.Constraint("Equal", 2, 3),
    Sketcher.Constraint("Equal", 3, 4),
    Sketcher.Constraint("Equal", 4, 5),
    Sketcher.Constraint("Equal", 5, 6),
    Sketcher.Constraint("Equal", 6, 7),
    Sketcher.Constraint("Equal", 7, 8),
    Sketcher.Constraint("Equal", 8, 9),
    Sketcher.Constraint("Equal", 9, 10),
    Sketcher.Constraint("Equal", 10, 11),
    Sketcher.Constraint("Symmetric", 0, 3, 6, 3, -1, 1),
    Sketcher.Constraint("Symmetric", 1, 3, 7, 3, -1, 1),
    Sketcher.Constraint("Symmetric", 2, 3, 8, 3, -1, 1),
    Sketcher.Constraint("Symmetric", 3, 3, 9, 3, -1, 1),
    Sketcher.Constraint("Symmetric", 4, 3, 10, 3, -1, 1),
    Sketcher.Constraint("Symmetric", 5, 3, 11, 3, -1, 1),
    Sketcher.Constraint("Symmetric", 5, 3, 7, 3, -2),
    Sketcher.Constraint("Symmetric", 4, 3, 8, 3, -2),
    Sketcher.Constraint("PointOnObject", 0, 3, -2),
    Sketcher.Constraint("PointOnObject", 3, 3, -1),
    Sketcher.Constraint("Diameter", 0, 4.0),
    Sketcher.Constraint("DistanceY", 0, 3, -1, 1, 54.0),
    Sketcher.Constraint("DistanceX", 1, 3, -1, 1, 27.0),
    Sketcher.Constraint("DistanceY", 2, 3, -1, 1, 27.0),
    Sketcher.Constraint("DistanceX", 3, 3, -1, 1, 54.0),
    Sketcher.Constraint("DistanceY", 1, 3, -1, 1, 46.7654),
    Sketcher.Constraint("DistanceX", 2, 3, -1, 1, 46.7654),
])
pad5 = body.newObject("PartDesign::Pad", "Pad004")
pad5.Profile = sketch13
pad5.Length = 29
pad5.Reversed = True

# Sketch on XY plane
sketch14 = body.newObject("Sketcher::SketchObject", "Sketch013")
sketch14.AttachmentSupport = (doc.getObject("XY_Plane"), [""])
sketch14.MapMode = "FlatFace"
sketch14.addGeometry([
    Part.LineSegment(V(68, 0, 0), V(34, -59, 0)),  # 0
    Part.LineSegment(V(34, -59, 0), V(-34, -59, 0)),  # 1
    Part.LineSegment(V(-34, -59, 0), V(-68, 0, 0)),  # 2
    Part.LineSegment(V(-68, 0, 0), V(-34, 59, 0)),  # 3
    Part.LineSegment(V(-34, 59, 0), V(34, 59, 0)),  # 4
    Part.LineSegment(V(34, 59, 0), V(68, 0, 0)),  # 5
    Part.LineSegment(V(-19, -33, 0), V(19, -33, 0)),  # 6
    Part.LineSegment(V(19, -33, 0), V(38, 0, 0)),  # 7
    Part.LineSegment(V(38, 0, 0), V(19, 33, 0)),  # 8
    Part.LineSegment(V(19, 33, 0), V(-19, 33, 0)),  # 9
    Part.LineSegment(V(-19, 33, 0), V(-38, 0, 0)),  # 10
    Part.LineSegment(V(-38, 0, 0), V(-19, -33, 0)),  # 11
], False)
sketch14.addConstraint([
    Sketcher.Constraint("Coincident", 0, 2, 1, 1),
    Sketcher.Constraint("Coincident", 1, 2, 2, 1),
    Sketcher.Constraint("Coincident", 2, 2, 3, 1),
    Sketcher.Constraint("Coincident", 3, 2, 4, 1),
    Sketcher.Constraint("Coincident", 4, 2, 5, 1),
    Sketcher.Constraint("Coincident", 5, 2, 0, 1),
    Sketcher.Constraint("Coincident", 6, 2, 7, 1),
    Sketcher.Constraint("Coincident", 7, 2, 8, 1),
    Sketcher.Constraint("Coincident", 8, 2, 9, 1),
    Sketcher.Constraint("Coincident", 9, 2, 10, 1),
    Sketcher.Constraint("Coincident", 10, 2, 11, 1),
    Sketcher.Constraint("Coincident", 11, 2, 6, 1),
    Sketcher.Constraint("Horizontal", 1),
    Sketcher.Constraint("Horizontal", 4),
    Sketcher.Constraint("Horizontal", 6),
    Sketcher.Constraint("Horizontal", 9),
    Sketcher.Constraint("Symmetric", 0, 2, 3, 2, -1, 1),
    Sketcher.Constraint("Symmetric", 2, 2, 5, 2, -1, 1),
    Sketcher.Constraint("Symmetric", 6, 2, 9, 2, -1, 1),
    Sketcher.Constraint("Symmetric", 7, 2, 10, 2, -1, 1),
    Sketcher.Constraint("PointOnObject", 2, 2, -1),
    Sketcher.Constraint("PointOnObject", 7, 2, -1),
    Sketcher.Constraint("Parallel", 2, 5),
    Sketcher.Constraint("Parallel", 3, 7),
    Sketcher.Constraint("Parallel", 5, 8),
    Sketcher.Constraint("Parallel", 8, 11),
    Sketcher.Constraint("Vertical", 1, 2, 3, 2),
    Sketcher.Constraint("Angle", 0, Q("-120 deg")),
    Sketcher.Constraint("DistanceY", 0, 2, -1, 1, 59.0),
    Sketcher.Constraint("DistanceY", 6, 2, -1, 1, 33.0),
    Sketcher.Constraint("DistanceX", 2, 2, 6, 2, 87.18),
    Sketcher.Constraint("DistanceX", 1, 2, 1, 1, 68.1274),
])
pad6 = body.newObject("PartDesign::Pad", "Pad005")
pad6.Profile = sketch14
pad6.Length = 13
pad6.Reversed = True

# Sketch on an angled plane
sketch15 = body.newObject("Sketcher::SketchObject", "Sketch014")
sketch15.Placement = App.Placement(V(68.1273, 0, 29), App.Rotation(V(0, 0, -1), V(-0.5, 0.866025404, 0), V(0.866025404, 0.5, 0), "ZXY"))
sketch15.addGeometry([
    Part.Circle(V(38, 27, 0), V(0, 0, 1), 2.5),
    Part.Circle(V(33, 41.1, 0), V(0, 0, 1), 2.5),
], False)
sketch15.addConstraint([
    Sketcher.Constraint("Equal", 0, 1),
    Sketcher.Constraint("Diameter", 0, 5.0),
    Sketcher.Constraint("DistanceX", 1, 3, 0, 3, 5.0),
    Sketcher.Constraint("DistanceX", -1, 1, 0, 3, 38.0),
    Sketcher.Constraint("DistanceY", 0, 3, 1, 3, 14.142),
    Sketcher.Constraint("DistanceY", -1, 1, 0, 3, 26.9926),
])
pocket9 = body.newObject("PartDesign::Pocket", "Pocket008")
pocket9.Profile = sketch15
pocket9.Length = 30
doc.recompute()

polarpattern = body.newObject("PartDesign::PolarPattern", "PolarPattern")
polarpattern.Originals = [pocket9]
polarpattern.Axis = (doc.getObject("Z_Axis"), [""])
polarpattern.Angle = 360
polarpattern.Occurrences = 6
body.Tip = polarpattern

# Sketch on XY plane
sketch16 = body.newObject("Sketcher::SketchObject", "Sketch015")
sketch16.AttachmentSupport = (doc.getObject("XY_Plane"), [""])
sketch16.MapMode = "FlatFace"
sketch16.AttachmentOffset = App.Placement(V(0, 0, 5), App.Rotation())
sketch16.addGeometry([
    Part.Circle(V(0, 17.5, 0), V(0, 0, 1), 2),
    Part.Circle(V(15.2, -8.8, 0), V(0, 0, 1), 2),
    Part.Circle(V(-15.2, -8.8, 0), V(0, 0, 1), 2),
], False)
sketch16.addConstraint([
    Sketcher.Constraint("Equal", 0, 1),
    Sketcher.Constraint("Equal", 1, 2),
    Sketcher.Constraint("Symmetric", 1, 3, 2, 3, -2),
    Sketcher.Constraint("PointOnObject", 0, 3, -2),
    Sketcher.Constraint("Diameter", 0, 4.0),
    Sketcher.Constraint("DistanceY", -1, 1, 0, 3, 17.5),
    Sketcher.Constraint("DistanceY", 1, 3, -1, 1, 8.75),
    Sketcher.Constraint("DistanceX", -1, 1, 1, 3, 15.1554),
])
pocket10 = body.newObject("PartDesign::Pocket", "Pocket009")
pocket10.Profile = sketch16
pocket10.Type = "ThroughAll"
pocket10.Reversed = True

# Sketch on XY plane
sketch17 = body.newObject("Sketcher::SketchObject", "Sketch016")
sketch17.AttachmentSupport = (doc.getObject("XY_Plane"), [""])
sketch17.MapMode = "FlatFace"
sketch17.AttachmentOffset = App.Placement(V(0, 0, 5), App.Rotation())
sketch17.addGeometry([
    Part.Circle(V(0, 0, 0), V(0, 0, 1), 29),  # 0
    Part.Circle(V(15.9, -15.9, 0), V(0, 0, 1), 2.2),  # 1
    Part.Circle(V(15.2, -8.8, 0), V(0, 0, 1), 2),  # 2
    Part.Circle(V(0, -22.5, 0), V(0, 0, 1), 2.2),  # 3
    Part.Circle(V(-15.9, -15.9, 0), V(0, 0, 1), 2.2),  # 4
    Part.Circle(V(-15.2, -8.8, 0), V(0, 0, 1), 2),  # 5
    Part.Circle(V(22.5, 0, 0), V(0, 0, 1), 2.2),  # 6
    Part.Circle(V(15.9, 15.9, 0), V(0, 0, 1), 2.2),  # 7
    Part.Circle(V(0, 0, 0), V(0, 0, 1), 3.5),  # 8
    Part.Circle(V(-22.5, 0, 0), V(0, 0, 1), 2.2),  # 9
    Part.Circle(V(0, 17.5, 0), V(0, 0, 1), 2),  # 10
    Part.Circle(V(0, 22.5, 0), V(0, 0, 1), 2.2),  # 11
    Part.Circle(V(-15.9, 15.9, 0), V(0, 0, 1), 2.2),  # 12
], False)
sketch17.addConstraint([
    Sketcher.Constraint("Coincident", 0, 3, -1, 1),
    Sketcher.Constraint("Coincident", 8, 3, -1, 1),
    Sketcher.Constraint("Equal", 1, 3),
    Sketcher.Constraint("Equal", 3, 4),
    Sketcher.Constraint("Equal", 2, 5),
    Sketcher.Constraint("Equal", 4, 6),
    Sketcher.Constraint("Equal", 6, 7),
    Sketcher.Constraint("Equal", 7, 9),
    Sketcher.Constraint("Equal", 5, 10),
    Sketcher.Constraint("Equal", 9, 11),
    Sketcher.Constraint("Equal", 11, 12),
    Sketcher.Constraint("Symmetric", 4, 3, 7, 3, -1, 1),
    Sketcher.Constraint("Symmetric", 6, 3, 9, 3, -1, 1),
    Sketcher.Constraint("Symmetric", 3, 3, 11, 3, -1, 1),
    Sketcher.Constraint("Symmetric", 1, 3, 12, 3, -1, 1),
    Sketcher.Constraint("Symmetric", 1, 3, 4, 3, -2),
    Sketcher.Constraint("Symmetric", 2, 3, 5, 3, -2),
    Sketcher.Constraint("PointOnObject", 3, 3, -2),
    Sketcher.Constraint("PointOnObject", 6, 3, -1),
    Sketcher.Constraint("PointOnObject", 10, 3, -2),
    Sketcher.Constraint("Diameter", 0, 58.0),
    Sketcher.Constraint("Diameter", 2, 4.0),
    Sketcher.Constraint("Diameter", 8, 7.0),
    Sketcher.Constraint("Diameter", 1, 4.5),
    Sketcher.Constraint("DistanceY", 10, 3, 11, 3, 5.0),
    Sketcher.Constraint("DistanceY", 3, 3, -1, 1, 22.5),
    Sketcher.Constraint("DistanceX", -1, 1, 6, 3, 22.5),
    Sketcher.Constraint("DistanceX", -1, 1, 1, 3, 15.91),
    Sketcher.Constraint("DistanceY", 1, 3, -1, 1, 15.91),
    Sketcher.Constraint("DistanceY", 2, 3, -1, 1, 8.75),
    Sketcher.Constraint("DistanceX", -1, 1, 2, 3, 15.1554),
])
pocket11 = body.newObject("PartDesign::Pocket", "Pocket010")
pocket11.Profile = sketch17
pocket11.Length = 5
pocket11.Reversed = True

# Sketch on XY plane
sketch18 = body.newObject("Sketcher::SketchObject", "Sketch017")
sketch18.AttachmentSupport = (doc.getObject("XY_Plane"), [""])
sketch18.MapMode = "FlatFace"
sketch18.AttachmentOffset = App.Placement(V(0, 0, 29), App.Rotation())
sketch18.addGeometry([
    Part.LineSegment(V(-68, 0, 0), V(-34, -59, 0)),  # 0
    Part.LineSegment(V(-34, -59, 0), V(34, -59, 0)),  # 1
    Part.LineSegment(V(34, -59, 0), V(68, 0, 0)),  # 2
    Part.LineSegment(V(68, 0, 0), V(34, 59, 0)),  # 3
    Part.LineSegment(V(34, 59, 0), V(-34, 59, 0)),  # 4
    Part.LineSegment(V(-34, 59, 0), V(-68, 0, 0)),  # 5
    Part.Circle(V(0, 0, 0), V(0, 0, 1), 49),  # 6
], False)
sketch18.addConstraint([
    Sketcher.Constraint("Coincident", 0, 2, 1, 1),
    Sketcher.Constraint("Coincident", 1, 2, 2, 1),
    Sketcher.Constraint("Coincident", 2, 2, 3, 1),
    Sketcher.Constraint("Coincident", 3, 2, 4, 1),
    Sketcher.Constraint("Coincident", 4, 2, 5, 1),
    Sketcher.Constraint("Coincident", 5, 2, 0, 1),
    Sketcher.Constraint("Horizontal", 1),
    Sketcher.Constraint("Horizontal", 4),
    Sketcher.Constraint("Coincident", 6, 3, -1, 1),
    Sketcher.Constraint("Symmetric", 0, 2, 3, 2, -1, 1),
    Sketcher.Constraint("Symmetric", 2, 2, 5, 2, -1, 1),
    Sketcher.Constraint("PointOnObject", 2, 2, -1),
    Sketcher.Constraint("Parallel", 2, 5),
    Sketcher.Constraint("Vertical", 1, 2, 3, 2),
    Sketcher.Constraint("Diameter", 6, 98.0),
    Sketcher.Constraint("Angle", 0, Q("-60 deg")),
    Sketcher.Constraint("DistanceY", 0, 2, -1, 1, 59.0),
    Sketcher.Constraint("DistanceX", 1, 1, 1, 2, 68.1274),
])
pad7 = body.newObject("PartDesign::Pad", "Pad006")
pad7.Profile = sketch18
pad7.Length = 1

# Sketch on XY plane
sketch19 = body.newObject("Sketcher::SketchObject", "Sketch018")
sketch19.AttachmentSupport = (doc.getObject("XY_Plane"), [""])
sketch19.MapMode = "FlatFace"
sketch19.AttachmentOffset = App.Placement(V(0, 0, 10), App.Rotation())
sketch19.addGeometry([
    Part.Circle(V(15.2, -8.8, 0), V(0, 0, 1), 2),
    Part.Circle(V(0, 17.5, 0), V(0, 0, 1), 2),
    Part.Circle(V(-15.2, -8.8, 0), V(0, 0, 1), 2),
], False)
sketch19.addConstraint([
    Sketcher.Constraint("Equal", 0, 1),
    Sketcher.Constraint("Equal", 1, 2),
    Sketcher.Constraint("Symmetric", 0, 3, 2, 3, -2),
    Sketcher.Constraint("PointOnObject", 1, 3, -2),
    Sketcher.Constraint("Diameter", 0, 4.0),
    Sketcher.Constraint("DistanceY", -1, 1, 1, 3, 17.5),
    Sketcher.Constraint("DistanceY", 0, 3, -1, 1, 8.75),
    Sketcher.Constraint("DistanceX", -1, 1, 0, 3, 15.1554),
])
pad8 = body.newObject("PartDesign::Pad", "Pad007")
pad8.Profile = sketch19
pad8.Length = 5

# Sketch on XY plane
sketch20 = body.newObject("Sketcher::SketchObject", "Sketch019")
sketch20.AttachmentSupport = (doc.getObject("XY_Plane"), [""])
sketch20.MapMode = "FlatFace"
sketch20.AttachmentOffset = App.Placement(V(0, 0, -13), App.Rotation())
sketch20.addGeometry([
    Part.Circle(V(62, 0, 0), V(0, 0, 1), 2.2),  # 0
    Part.Circle(V(31, -53.7, 0), V(0, 0, 1), 2.2),  # 1
    Part.Circle(V(-31, -53.7, 0), V(0, 0, 1), 2.2),  # 2
    Part.Circle(V(-62, 0, 0), V(0, 0, 1), 2.2),  # 3
    Part.Circle(V(-31, 53.7, 0), V(0, 0, 1), 2.2),  # 4
    Part.Circle(V(31, 53.7, 0), V(0, 0, 1), 2.2),  # 5
], False)
sketch20.addConstraint([
    Sketcher.Constraint("Equal", 0, 1),
    Sketcher.Constraint("Equal", 1, 2),
    Sketcher.Constraint("Equal", 2, 3),
    Sketcher.Constraint("Equal", 3, 4),
    Sketcher.Constraint("Equal", 4, 5),
    Sketcher.Constraint("Symmetric", 0, 3, 3, 3, -1, 1),
    Sketcher.Constraint("Symmetric", 1, 3, 4, 3, -1, 1),
    Sketcher.Constraint("Symmetric", 2, 3, 5, 3, -1, 1),
    Sketcher.Constraint("Symmetric", 1, 3, 2, 3, -2),
    Sketcher.Constraint("PointOnObject", 0, 3, -1),
    Sketcher.Constraint("Diameter", 0, 4.5),
    Sketcher.Constraint("DistanceX", -1, 1, 0, 3, 62.0),
    Sketcher.Constraint("DistanceX", 2, 3, 1, 3, 62.0),
    Sketcher.Constraint("DistanceY", 1, 3, -1, 1, 53.6936),
])
pocket12 = body.newObject("PartDesign::Pocket", "Pocket011")
pocket12.Profile = sketch20
pocket12.Type = "ThroughAll"
pocket12.Reversed = True

doc.recompute()
